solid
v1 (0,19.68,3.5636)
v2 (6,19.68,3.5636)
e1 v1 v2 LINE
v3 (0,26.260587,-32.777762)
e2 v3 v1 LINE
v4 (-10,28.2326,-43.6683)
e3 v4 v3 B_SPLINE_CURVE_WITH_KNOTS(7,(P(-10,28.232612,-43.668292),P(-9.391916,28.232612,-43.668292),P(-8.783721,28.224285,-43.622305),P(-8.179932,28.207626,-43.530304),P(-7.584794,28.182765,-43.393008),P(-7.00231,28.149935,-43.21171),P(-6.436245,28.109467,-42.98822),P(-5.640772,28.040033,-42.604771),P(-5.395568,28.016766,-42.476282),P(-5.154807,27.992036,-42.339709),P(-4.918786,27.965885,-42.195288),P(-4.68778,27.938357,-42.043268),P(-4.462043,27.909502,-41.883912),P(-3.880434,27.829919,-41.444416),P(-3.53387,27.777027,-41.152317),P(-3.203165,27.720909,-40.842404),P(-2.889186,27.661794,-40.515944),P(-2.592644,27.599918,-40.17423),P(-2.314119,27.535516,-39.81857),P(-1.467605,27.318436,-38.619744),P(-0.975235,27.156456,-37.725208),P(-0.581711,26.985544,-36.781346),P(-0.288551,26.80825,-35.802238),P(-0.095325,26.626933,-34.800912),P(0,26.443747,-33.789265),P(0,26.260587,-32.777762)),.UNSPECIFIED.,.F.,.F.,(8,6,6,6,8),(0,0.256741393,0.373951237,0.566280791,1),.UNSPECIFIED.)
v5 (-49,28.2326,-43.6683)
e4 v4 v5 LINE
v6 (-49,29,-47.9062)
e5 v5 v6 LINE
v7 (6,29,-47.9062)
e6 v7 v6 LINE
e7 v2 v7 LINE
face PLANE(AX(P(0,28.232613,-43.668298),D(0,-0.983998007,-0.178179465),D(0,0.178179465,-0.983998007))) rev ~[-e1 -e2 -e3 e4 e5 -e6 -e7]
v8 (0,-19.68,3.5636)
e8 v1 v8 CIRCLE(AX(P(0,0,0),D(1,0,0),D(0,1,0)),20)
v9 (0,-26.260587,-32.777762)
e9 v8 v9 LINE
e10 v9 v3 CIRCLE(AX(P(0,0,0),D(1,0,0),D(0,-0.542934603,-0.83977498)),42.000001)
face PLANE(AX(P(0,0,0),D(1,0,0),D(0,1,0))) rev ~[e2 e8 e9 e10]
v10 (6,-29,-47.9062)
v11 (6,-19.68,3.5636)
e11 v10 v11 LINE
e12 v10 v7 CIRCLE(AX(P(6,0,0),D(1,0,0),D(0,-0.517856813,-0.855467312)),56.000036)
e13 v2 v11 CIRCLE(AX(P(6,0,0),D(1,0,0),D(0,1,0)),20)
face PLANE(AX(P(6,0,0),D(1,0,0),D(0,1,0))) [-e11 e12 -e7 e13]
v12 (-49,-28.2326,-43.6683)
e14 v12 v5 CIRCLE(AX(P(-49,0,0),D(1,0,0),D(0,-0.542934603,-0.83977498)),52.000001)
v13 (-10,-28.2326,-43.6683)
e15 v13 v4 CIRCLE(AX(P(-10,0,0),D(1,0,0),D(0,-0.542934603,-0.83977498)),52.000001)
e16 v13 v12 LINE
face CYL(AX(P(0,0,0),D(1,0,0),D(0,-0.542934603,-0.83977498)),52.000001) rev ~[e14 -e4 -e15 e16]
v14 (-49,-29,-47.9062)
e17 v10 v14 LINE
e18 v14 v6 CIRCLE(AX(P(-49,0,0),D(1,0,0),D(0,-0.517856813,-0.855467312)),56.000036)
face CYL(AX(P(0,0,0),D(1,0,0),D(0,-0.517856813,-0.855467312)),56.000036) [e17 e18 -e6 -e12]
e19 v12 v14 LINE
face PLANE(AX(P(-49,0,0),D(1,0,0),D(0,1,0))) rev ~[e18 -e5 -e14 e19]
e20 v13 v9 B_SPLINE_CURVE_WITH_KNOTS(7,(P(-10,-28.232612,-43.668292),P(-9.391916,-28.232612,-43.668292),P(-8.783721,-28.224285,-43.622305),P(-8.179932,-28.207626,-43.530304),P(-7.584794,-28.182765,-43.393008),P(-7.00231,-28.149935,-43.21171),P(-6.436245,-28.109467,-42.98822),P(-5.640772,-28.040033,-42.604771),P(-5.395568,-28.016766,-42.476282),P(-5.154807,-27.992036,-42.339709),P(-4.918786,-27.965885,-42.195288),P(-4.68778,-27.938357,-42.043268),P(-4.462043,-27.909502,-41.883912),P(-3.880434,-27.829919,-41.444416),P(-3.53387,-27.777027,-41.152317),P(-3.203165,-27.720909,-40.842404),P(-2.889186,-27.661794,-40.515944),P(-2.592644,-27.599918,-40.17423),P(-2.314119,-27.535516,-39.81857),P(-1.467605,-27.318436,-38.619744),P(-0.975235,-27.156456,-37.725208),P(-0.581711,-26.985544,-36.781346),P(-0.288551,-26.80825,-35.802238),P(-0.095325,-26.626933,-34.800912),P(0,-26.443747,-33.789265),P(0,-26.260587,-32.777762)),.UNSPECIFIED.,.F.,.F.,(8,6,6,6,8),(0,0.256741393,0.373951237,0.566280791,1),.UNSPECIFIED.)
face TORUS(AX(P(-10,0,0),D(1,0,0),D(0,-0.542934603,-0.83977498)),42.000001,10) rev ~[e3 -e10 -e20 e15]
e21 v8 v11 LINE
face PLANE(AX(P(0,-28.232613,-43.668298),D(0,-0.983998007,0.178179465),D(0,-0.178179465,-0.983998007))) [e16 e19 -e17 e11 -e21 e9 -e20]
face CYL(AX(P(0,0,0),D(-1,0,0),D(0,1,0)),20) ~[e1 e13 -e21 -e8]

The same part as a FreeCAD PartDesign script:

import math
import FreeCAD as App
import Part
import Sketcher

V = App.Vector
Q = App.Units.Quantity


def edges_at(feature, points):
    """Names of the edges that pass closest to the given points."""
    edges = feature.Shape.Edges
    near = lambda p: min(range(len(edges)), key=lambda i: edges[i].distToShape(Part.Vertex(*p))[0])
    return sorted({f"Edge{near(p) + 1}" for p in points})

doc = App.newDocument("Part")
body = doc.addObject("PartDesign::Body", "Body")

# Sketch on YZ plane
sketch1 = body.newObject("Sketcher::SketchObject", "Sketch")
sketch1.AttachmentSupport = (doc.getObject("YZ_Plane"), [""])
sketch1.MapMode = "FlatFace"
sketch1.addGeometry([
    Part.ArcOfCircle(Part.Circle(V(0, 0, 0), V(0, 0, 1), 20), math.radians(10), math.radians(170)),
    Part.LineSegment(V(-20, 4, 0), V(-29, -48, 0)),
    Part.ArcOfCircle(Part.Circle(V(0, 0, 0), V(0, 0, 1), 56), math.radians(-121), math.radians(-59)),
    Part.LineSegment(V(29, -48, 0), V(20, 4, 0)),
], False)
sketch1.addConstraint([
    Sketcher.Constraint("Tangent", 0, 2, 1, 1),
    Sketcher.Constraint("Coincident", 1, 2, 2, 1),
    Sketcher.Constraint("Coincident", 2, 2, 3, 1),
    Sketcher.Constraint("Tangent", 3, 2, 0, 1),
    Sketcher.Constraint("Coincident", 0, 3, -1, 1),
    Sketcher.Constraint("Coincident", 2, 3, -1, 1),
    Sketcher.Constraint("Horizontal", 1, 2, 2, 2),
    Sketcher.Constraint("Radius", 0, Q("20 mm")),
    Sketcher.Constraint("Radius", 2, Q("56 mm")),
    Sketcher.Constraint("DistanceX", 1, 2, 2, 2, Q("58 mm")),
])
pad1 = body.newObject("PartDesign::Pad", "Pad")
pad1.Profile = sketch1
pad1.Length = 6

# Sketch on YZ plane
sketch2 = body.newObject("Sketcher::SketchObject", "Sketch001")
sketch2.AttachmentSupport = (doc.getObject("YZ_Plane"), [""])
sketch2.MapMode = "FlatFace"
sketch2.addGeometry([
    Part.LineSegment(V(29, -47.9, 0), V(28.2, -43.7, 0)),
    Part.ArcOfCircle(Part.Circle(V(0, 0, 0), V(0, 0, 1), 52), math.radians(-123), math.radians(-57)),
    Part.LineSegment(V(-28.2, -43.7, 0), V(-29, -47.9, 0)),
    Part.ArcOfCircle(Part.Circle(V(0, 0, 0), V(0, 0, 1), 56), math.radians(-121), math.radians(-59)),
], False)
sketch2.addConstraint([
    Sketcher.Constraint("Coincident", 0, 2, 1, 2),
    Sketcher.Constraint("Coincident", 1, 1, 2, 1),
    Sketcher.Constraint("Coincident", 2, 2, 3, 1),
    Sketcher.Constraint("Coincident", 3, 2, 0, 1),
    Sketcher.Constraint("Coincident", 1, 3, -1, 1),
    Sketcher.Constraint("Coincident", 3, 3, -1, 1),
    Sketcher.Constraint("Horizontal", 0, 2, 1, 1),
    Sketcher.Constraint("Horizontal", 2, 2, 3, 2),
    Sketcher.Constraint("Radius", 1, Q("52 mm")),
    Sketcher.Constraint("Radius", 3, Q("56 mm")),
    Sketcher.Constraint("DistanceX", 2, 2, 3, 2, Q("58 mm")),
    Sketcher.Constraint("DistanceY", 2, 2, 1, 1, Q("4.238 mm")),
])
pad2 = body.newObject("PartDesign::Pad", "Pad001")
pad2.Profile = sketch2
pad2.Length = 49
pad2.Reversed = True
doc.recompute()

fillet = body.newObject("PartDesign::Fillet", "Fillet")
fillet.Base = (pad2, edges_at(pad2, [(0, 0, -52)]))
fillet.Radius = 10

doc.recompute()
